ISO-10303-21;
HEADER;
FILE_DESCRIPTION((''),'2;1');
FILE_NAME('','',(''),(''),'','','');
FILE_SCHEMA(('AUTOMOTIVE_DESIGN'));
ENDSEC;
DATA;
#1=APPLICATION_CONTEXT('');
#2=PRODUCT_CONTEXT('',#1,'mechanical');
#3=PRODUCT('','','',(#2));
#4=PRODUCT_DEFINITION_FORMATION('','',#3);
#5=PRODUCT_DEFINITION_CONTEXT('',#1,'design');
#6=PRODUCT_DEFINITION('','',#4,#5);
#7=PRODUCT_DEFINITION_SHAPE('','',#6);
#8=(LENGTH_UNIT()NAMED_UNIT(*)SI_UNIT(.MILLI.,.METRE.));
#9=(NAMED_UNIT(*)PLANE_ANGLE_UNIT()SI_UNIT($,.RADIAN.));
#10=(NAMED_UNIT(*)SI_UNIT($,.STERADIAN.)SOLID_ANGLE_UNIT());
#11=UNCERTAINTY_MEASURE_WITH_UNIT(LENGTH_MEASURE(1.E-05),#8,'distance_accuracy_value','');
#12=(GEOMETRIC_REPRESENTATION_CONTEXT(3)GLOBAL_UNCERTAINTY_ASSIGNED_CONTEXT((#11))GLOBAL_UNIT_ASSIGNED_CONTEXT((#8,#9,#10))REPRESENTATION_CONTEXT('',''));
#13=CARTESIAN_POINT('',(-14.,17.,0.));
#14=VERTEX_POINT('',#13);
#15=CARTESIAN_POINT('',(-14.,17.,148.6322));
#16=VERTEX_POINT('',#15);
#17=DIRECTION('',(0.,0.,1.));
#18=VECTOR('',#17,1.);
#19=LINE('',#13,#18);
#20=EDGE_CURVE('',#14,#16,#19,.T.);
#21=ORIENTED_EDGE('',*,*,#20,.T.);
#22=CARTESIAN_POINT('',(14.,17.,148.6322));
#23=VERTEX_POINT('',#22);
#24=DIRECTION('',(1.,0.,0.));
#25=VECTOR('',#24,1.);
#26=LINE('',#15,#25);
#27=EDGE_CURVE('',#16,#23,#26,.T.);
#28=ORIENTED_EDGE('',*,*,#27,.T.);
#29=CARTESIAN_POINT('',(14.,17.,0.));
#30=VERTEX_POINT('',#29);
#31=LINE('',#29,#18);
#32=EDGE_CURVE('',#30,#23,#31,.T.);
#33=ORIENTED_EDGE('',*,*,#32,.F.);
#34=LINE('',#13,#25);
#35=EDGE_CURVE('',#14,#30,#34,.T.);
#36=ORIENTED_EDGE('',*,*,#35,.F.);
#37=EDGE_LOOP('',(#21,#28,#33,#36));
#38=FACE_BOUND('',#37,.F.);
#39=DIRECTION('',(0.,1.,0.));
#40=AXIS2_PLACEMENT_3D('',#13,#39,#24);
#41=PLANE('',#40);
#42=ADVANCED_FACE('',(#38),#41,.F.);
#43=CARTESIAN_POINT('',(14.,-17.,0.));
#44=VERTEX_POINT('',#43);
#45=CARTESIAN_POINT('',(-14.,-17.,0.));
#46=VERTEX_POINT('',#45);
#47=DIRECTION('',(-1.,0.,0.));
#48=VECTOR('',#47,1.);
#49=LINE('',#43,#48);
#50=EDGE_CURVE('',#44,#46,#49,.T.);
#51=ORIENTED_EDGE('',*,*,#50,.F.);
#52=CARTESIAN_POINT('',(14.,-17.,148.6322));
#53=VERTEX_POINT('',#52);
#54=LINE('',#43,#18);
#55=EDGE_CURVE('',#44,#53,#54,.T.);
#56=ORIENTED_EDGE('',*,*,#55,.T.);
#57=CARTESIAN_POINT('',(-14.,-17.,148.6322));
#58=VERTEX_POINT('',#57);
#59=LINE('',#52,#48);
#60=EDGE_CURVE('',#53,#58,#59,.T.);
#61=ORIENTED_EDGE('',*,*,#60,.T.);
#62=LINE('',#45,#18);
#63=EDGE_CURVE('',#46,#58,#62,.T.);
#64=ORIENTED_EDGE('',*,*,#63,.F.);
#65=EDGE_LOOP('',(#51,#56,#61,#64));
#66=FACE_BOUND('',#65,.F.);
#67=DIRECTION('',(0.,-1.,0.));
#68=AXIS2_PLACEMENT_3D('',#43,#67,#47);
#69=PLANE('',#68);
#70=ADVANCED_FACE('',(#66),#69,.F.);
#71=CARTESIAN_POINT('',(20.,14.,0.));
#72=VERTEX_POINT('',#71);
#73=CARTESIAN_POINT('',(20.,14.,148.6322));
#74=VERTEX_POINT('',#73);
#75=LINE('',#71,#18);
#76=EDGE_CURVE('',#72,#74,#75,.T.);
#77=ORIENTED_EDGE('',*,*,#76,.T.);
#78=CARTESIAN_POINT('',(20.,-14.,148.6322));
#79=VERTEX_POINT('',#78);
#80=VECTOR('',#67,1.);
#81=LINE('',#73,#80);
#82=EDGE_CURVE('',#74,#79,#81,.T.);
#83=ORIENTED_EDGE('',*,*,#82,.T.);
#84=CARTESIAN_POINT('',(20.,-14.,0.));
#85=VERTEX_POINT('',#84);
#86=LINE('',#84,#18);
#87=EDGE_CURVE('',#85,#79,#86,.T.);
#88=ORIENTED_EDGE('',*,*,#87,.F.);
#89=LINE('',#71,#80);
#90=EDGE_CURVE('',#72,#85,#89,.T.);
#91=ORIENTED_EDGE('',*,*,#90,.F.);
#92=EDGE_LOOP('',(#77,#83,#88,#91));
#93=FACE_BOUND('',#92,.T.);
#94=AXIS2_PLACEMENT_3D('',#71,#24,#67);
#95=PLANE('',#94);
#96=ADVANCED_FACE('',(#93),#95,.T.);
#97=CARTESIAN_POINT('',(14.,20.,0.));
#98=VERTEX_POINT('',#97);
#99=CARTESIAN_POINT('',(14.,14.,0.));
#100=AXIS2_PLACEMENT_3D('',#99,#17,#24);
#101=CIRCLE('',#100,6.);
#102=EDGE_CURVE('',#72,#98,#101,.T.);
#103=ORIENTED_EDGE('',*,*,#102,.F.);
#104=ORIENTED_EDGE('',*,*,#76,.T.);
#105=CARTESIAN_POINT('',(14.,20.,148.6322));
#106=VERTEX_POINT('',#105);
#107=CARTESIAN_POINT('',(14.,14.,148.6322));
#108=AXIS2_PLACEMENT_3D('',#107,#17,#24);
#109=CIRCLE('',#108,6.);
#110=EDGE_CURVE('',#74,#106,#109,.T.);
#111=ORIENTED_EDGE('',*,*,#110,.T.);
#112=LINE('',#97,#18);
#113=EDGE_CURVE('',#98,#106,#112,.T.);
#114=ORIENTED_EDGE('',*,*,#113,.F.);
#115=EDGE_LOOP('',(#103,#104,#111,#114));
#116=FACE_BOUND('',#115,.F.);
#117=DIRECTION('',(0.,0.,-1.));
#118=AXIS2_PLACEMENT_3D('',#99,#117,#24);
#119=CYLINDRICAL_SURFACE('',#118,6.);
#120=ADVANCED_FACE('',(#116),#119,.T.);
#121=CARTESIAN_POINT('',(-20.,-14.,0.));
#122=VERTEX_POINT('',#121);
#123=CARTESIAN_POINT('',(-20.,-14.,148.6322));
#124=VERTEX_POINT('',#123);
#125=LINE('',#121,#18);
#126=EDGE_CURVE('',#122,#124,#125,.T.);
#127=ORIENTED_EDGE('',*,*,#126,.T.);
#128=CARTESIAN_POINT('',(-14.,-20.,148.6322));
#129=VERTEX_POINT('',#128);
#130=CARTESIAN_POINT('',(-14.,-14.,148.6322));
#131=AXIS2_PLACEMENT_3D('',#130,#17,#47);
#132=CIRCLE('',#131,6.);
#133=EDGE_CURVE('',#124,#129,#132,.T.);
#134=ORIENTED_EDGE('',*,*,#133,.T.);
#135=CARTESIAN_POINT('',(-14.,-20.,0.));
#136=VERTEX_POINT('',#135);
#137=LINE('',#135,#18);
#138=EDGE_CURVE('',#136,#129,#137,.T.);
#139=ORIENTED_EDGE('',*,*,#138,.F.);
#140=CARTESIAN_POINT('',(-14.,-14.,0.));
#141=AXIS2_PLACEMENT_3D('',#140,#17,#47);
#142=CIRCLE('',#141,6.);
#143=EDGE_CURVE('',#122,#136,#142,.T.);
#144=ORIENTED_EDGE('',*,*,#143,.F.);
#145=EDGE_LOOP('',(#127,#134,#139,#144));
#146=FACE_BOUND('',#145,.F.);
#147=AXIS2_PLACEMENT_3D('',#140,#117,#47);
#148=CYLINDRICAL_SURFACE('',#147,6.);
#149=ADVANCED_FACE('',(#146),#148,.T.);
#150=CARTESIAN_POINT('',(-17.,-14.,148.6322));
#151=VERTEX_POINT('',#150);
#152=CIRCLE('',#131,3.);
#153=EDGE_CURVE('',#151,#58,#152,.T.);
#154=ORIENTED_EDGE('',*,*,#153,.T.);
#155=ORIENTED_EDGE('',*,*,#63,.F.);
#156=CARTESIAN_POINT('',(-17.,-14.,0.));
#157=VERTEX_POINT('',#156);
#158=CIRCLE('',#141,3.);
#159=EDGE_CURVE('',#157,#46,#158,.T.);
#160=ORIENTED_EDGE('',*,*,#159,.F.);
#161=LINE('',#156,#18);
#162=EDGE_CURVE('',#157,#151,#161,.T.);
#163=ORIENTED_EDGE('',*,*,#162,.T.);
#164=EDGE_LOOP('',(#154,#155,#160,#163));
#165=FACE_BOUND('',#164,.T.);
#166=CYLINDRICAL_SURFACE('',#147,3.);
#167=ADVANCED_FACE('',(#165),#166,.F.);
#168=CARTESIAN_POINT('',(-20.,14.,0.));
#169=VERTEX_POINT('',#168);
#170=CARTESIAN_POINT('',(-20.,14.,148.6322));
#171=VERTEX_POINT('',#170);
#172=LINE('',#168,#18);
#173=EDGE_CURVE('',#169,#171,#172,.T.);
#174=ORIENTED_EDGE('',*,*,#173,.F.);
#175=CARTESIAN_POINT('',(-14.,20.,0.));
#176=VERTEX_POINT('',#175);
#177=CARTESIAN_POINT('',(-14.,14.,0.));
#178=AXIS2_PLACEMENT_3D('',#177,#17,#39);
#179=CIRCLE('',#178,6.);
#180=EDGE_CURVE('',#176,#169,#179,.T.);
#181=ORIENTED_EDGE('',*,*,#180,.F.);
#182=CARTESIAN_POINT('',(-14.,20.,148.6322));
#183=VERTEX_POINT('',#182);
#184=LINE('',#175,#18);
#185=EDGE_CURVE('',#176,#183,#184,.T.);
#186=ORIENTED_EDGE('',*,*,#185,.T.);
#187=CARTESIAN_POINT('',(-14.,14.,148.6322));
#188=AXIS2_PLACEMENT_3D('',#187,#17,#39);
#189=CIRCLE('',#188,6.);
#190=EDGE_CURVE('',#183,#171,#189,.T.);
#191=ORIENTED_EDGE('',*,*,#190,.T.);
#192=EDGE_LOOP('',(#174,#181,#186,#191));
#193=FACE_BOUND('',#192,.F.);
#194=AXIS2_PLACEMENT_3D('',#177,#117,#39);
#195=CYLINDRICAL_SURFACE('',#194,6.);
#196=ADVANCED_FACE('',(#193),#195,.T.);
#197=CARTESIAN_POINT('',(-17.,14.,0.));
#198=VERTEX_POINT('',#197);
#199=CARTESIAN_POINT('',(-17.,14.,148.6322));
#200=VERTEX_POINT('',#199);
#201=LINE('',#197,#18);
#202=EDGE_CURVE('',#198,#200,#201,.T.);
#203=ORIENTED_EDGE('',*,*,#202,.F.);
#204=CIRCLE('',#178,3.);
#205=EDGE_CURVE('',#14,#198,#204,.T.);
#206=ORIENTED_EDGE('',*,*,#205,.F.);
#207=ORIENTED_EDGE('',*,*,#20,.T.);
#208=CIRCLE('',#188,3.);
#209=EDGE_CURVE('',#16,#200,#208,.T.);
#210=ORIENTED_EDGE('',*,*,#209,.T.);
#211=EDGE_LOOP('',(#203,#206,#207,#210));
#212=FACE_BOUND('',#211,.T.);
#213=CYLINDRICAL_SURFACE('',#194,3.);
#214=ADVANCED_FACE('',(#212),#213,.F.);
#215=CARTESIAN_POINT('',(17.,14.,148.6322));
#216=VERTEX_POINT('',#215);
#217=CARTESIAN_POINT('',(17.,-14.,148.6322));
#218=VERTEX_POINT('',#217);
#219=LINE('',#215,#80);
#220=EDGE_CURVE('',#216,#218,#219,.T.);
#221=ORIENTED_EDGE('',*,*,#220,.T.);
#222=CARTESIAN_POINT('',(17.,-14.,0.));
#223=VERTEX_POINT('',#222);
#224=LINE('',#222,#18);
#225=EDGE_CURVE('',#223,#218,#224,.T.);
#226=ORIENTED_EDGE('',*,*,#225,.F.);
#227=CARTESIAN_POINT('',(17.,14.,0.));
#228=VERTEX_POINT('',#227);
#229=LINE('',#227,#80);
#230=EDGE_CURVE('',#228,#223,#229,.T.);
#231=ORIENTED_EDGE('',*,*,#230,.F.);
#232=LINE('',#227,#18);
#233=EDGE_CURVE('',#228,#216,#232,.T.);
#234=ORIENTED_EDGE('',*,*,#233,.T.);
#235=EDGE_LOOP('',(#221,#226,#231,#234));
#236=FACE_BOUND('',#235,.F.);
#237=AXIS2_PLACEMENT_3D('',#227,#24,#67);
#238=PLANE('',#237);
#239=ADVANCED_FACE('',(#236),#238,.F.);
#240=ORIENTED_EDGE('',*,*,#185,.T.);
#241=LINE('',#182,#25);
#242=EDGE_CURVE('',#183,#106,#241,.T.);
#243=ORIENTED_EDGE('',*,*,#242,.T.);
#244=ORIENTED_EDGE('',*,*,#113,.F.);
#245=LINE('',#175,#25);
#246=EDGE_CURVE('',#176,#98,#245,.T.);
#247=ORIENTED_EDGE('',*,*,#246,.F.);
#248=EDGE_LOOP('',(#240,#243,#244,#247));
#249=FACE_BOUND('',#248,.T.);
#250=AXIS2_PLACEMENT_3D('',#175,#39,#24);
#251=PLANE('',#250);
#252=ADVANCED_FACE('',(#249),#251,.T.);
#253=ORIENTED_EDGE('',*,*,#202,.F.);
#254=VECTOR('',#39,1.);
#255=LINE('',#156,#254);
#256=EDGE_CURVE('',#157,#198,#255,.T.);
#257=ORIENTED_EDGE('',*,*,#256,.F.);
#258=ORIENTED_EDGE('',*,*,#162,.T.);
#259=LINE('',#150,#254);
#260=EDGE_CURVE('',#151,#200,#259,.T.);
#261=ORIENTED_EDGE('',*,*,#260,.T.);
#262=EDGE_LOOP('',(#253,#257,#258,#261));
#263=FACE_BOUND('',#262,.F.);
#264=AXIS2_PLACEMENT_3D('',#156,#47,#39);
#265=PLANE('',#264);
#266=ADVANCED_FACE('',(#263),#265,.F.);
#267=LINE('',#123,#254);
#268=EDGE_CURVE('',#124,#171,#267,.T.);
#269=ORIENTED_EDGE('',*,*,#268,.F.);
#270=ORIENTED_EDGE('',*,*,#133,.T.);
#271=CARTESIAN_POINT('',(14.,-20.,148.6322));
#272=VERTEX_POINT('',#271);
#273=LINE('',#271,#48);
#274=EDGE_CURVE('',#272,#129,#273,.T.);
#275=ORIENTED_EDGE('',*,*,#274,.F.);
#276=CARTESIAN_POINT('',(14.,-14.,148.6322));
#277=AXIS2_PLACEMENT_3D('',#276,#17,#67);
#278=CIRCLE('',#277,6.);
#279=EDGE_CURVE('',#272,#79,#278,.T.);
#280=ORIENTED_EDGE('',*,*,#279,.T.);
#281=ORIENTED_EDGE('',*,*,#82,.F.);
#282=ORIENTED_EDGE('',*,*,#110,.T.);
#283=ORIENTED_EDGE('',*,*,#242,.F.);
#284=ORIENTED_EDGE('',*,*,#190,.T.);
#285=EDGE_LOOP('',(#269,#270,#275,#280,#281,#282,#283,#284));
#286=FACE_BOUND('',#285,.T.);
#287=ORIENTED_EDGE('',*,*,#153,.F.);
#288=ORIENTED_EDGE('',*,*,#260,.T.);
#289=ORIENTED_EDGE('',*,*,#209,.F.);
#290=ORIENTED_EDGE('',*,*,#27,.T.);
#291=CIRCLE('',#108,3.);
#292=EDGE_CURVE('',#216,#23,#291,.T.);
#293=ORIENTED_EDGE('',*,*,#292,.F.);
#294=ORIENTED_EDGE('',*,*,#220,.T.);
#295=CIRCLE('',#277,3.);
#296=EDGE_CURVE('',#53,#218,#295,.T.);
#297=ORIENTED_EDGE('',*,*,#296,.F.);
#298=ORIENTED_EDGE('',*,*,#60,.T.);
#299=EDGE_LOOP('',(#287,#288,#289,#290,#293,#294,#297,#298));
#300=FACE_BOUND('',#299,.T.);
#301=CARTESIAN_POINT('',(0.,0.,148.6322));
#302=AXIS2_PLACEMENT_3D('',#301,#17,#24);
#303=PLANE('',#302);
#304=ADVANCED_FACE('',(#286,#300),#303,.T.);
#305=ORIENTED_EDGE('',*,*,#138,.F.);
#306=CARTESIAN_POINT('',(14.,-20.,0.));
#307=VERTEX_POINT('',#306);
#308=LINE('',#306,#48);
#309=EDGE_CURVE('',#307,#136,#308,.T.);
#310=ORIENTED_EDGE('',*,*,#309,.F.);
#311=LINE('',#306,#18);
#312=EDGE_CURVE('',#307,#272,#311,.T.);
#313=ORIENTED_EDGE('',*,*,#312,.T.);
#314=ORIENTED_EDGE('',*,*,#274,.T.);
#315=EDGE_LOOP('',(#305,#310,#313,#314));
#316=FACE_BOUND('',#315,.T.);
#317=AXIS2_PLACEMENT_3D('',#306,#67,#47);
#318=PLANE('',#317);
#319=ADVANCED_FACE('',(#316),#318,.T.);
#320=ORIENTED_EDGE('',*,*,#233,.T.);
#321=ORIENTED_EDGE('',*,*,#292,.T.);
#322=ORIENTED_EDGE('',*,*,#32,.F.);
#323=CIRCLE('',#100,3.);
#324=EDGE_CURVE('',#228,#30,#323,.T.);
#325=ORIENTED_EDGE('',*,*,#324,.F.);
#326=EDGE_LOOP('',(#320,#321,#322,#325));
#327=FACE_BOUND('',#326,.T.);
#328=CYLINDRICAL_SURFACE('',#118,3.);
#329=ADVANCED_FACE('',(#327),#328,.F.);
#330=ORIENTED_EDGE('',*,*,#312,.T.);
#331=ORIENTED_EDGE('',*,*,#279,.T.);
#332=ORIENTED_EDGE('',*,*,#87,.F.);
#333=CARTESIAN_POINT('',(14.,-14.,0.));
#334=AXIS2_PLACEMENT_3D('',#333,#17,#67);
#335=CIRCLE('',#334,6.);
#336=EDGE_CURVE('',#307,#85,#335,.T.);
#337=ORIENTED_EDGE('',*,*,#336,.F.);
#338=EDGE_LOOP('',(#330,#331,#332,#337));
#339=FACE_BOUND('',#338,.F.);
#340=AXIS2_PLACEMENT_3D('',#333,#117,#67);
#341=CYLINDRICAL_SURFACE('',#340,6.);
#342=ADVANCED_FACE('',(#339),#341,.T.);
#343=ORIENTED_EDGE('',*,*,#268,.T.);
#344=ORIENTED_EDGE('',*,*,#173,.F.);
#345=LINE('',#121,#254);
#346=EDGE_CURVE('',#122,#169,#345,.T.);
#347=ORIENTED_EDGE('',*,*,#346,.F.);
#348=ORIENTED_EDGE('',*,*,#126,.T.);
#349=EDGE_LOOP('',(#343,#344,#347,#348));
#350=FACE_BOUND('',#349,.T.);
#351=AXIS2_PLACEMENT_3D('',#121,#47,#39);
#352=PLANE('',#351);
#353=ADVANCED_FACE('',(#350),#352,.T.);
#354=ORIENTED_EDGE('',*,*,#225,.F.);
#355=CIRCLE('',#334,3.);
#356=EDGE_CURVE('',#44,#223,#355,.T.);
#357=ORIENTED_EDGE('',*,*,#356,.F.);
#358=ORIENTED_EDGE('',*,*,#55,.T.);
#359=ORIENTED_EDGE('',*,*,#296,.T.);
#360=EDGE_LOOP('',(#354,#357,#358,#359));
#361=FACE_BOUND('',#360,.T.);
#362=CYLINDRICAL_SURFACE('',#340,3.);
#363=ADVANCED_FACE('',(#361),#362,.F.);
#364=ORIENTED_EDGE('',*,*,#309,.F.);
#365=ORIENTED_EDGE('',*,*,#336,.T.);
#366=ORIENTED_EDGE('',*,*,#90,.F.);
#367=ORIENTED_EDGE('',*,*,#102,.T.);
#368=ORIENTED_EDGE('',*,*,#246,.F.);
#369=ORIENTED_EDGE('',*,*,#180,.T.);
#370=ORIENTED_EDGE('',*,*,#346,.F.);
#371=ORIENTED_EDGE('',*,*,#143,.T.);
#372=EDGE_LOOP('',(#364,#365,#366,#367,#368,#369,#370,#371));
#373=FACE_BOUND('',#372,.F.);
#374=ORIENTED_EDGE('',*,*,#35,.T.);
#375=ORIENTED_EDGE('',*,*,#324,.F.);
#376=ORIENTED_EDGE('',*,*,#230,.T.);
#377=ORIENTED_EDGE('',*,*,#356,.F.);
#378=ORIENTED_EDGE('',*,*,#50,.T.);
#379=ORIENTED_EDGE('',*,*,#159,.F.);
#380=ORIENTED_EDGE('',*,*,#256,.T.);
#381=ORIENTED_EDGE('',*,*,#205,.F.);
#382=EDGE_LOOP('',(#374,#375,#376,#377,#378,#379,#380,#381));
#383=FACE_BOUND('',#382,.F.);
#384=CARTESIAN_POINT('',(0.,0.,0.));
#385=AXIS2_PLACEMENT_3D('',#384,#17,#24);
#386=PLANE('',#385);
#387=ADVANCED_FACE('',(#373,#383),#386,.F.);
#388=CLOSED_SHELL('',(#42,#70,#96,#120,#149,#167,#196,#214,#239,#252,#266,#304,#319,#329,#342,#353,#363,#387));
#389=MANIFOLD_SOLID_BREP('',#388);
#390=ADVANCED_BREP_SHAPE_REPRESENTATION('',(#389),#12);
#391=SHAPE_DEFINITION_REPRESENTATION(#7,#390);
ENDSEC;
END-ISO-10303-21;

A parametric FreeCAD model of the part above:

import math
import FreeCAD as App
import Part
import Sketcher

V = App.Vector
Q = App.Units.Quantity

doc = App.newDocument("Part")
body = doc.addObject("PartDesign::Body", "Body")

# Sketch on XY plane
sketch1 = body.newObject("Sketcher::SketchObject", "Sketch")
sketch1.AttachmentSupport = (doc.getObject("XY_Plane"), [""])
sketch1.MapMode = "FlatFace"
sketch1.addGeometry(Part.LineSegment(V(-20, 14, 0), V(-20, -14, 0)), False)
sketch1.addGeometry(Part.ArcOfCircle(Part.Circle(V(-14, -14, 0), V(0, 0, 1), 6), math.radians(180), math.radians(270)), False)
sketch1.addGeometry(Part.LineSegment(V(-14, -20, 0), V(14, -20, 0)), False)
sketch1.addGeometry(Part.ArcOfCircle(Part.Circle(V(14, -14, 0), V(0, 0, 1), 6), math.radians(-90), math.radians(0)), False)
sketch1.addGeometry(Part.LineSegment(V(20, -14, 0), V(20, 14, 0)), False)
sketch1.addGeometry(Part.ArcOfCircle(Part.Circle(V(14, 14, 0), V(0, 0, 1), 6), math.radians(0), math.radians(90)), False)
sketch1.addGeometry(Part.LineSegment(V(14, 20, 0), V(-14, 20, 0)), False)
sketch1.addGeometry(Part.ArcOfCircle(Part.Circle(V(-14, 14, 0), V(0, 0, 1), 6), math.radians(90), math.radians(180)), False)
sketch1.addGeometry(Part.ArcOfCircle(Part.Circle(V(-14, 14, 0), V(0, 0, 1), 3), math.radians(90), math.radians(180)), False)
sketch1.addGeometry(Part.LineSegment(V(-14, 17, 0), V(14, 17, 0)), False)
sketch1.addGeometry(Part.ArcOfCircle(Part.Circle(V(14, 14, 0), V(0, 0, 1), 3), math.radians(0), math.radians(90)), False)
sketch1.addGeometry(Part.LineSegment(V(17, 14, 0), V(17, -14, 0)), False)
sketch1.addGeometry(Part.ArcOfCircle(Part.Circle(V(14, -14, 0), V(0, 0, 1), 3), math.radians(-90), math.radians(0)), False)
sketch1.addGeometry(Part.LineSegment(V(14, -17, 0), V(-14, -17, 0)), False)
sketch1.addGeometry(Part.ArcOfCircle(Part.Circle(V(-14, -14, 0), V(0, 0, 1), 3), math.radians(180), math.radians(270)), False)
sketch1.addGeometry(Part.LineSegment(V(-17, -14, 0), V(-17, 14, 0)), False)
sketch1.addConstraint(Sketcher.Constraint("Tangent", 0, 2, 1, 1))
sketch1.addConstraint(Sketcher.Constraint("Tangent", 1, 2, 2, 1))
sketch1.addConstraint(Sketcher.Constraint("Tangent", 2, 2, 3, 1))
sketch1.addConstraint(Sketcher.Constraint("Tangent", 3, 2, 4, 1))
sketch1.addConstraint(Sketcher.Constraint("Tangent", 4, 2, 5, 1))
sketch1.addConstraint(Sketcher.Constraint("Tangent", 5, 2, 6, 1))
sketch1.addConstraint(Sketcher.Constraint("Tangent", 6, 2, 7, 1))
sketch1.addConstraint(Sketcher.Constraint("Tangent", 7, 2, 0, 1))
sketch1.addConstraint(Sketcher.Constraint("Tangent", 8, 1, 9, 1))
sketch1.addConstraint(Sketcher.Constraint("Tangent", 9, 2, 10, 2))
sketch1.addConstraint(Sketcher.Constraint("Tangent", 10, 1, 11, 1))
sketch1.addConstraint(Sketcher.Constraint("Tangent", 11, 2, 12, 2))
sketch1.addConstraint(Sketcher.Constraint("Tangent", 12, 1, 13, 1))
sketch1.addConstraint(Sketcher.Constraint("Tangent", 13, 2, 14, 2))
sketch1.addConstraint(Sketcher.Constraint("Tangent", 14, 1, 15, 1))
sketch1.addConstraint(Sketcher.Constraint("Tangent", 15, 2, 8, 2))
sketch1.addConstraint(Sketcher.Constraint("Vertical", 0))
sketch1.addConstraint(Sketcher.Constraint("Horizontal", 2))
sketch1.addConstraint(Sketcher.Constraint("Vertical", 4))
sketch1.addConstraint(Sketcher.Constraint("Horizontal", 6))
sketch1.addConstraint(Sketcher.Constraint("Horizontal", 9))
sketch1.addConstraint(Sketcher.Constraint("Vertical", 11))
sketch1.addConstraint(Sketcher.Constraint("Horizontal", 13))
sketch1.addConstraint(Sketcher.Constraint("Vertical", 15))
sketch1.addConstraint(Sketcher.Constraint("Coincident", 8, 3, 7, 3))
sketch1.addConstraint(Sketcher.Constraint("Coincident", 10, 3, 5, 3))
sketch1.addConstraint(Sketcher.Constraint("Coincident", 12, 3, 3, 3))
sketch1.addConstraint(Sketcher.Constraint("Equal", 1, 3))
sketch1.addConstraint(Sketcher.Constraint("Equal", 3, 5))
sketch1.addConstraint(Sketcher.Constraint("Equal", 5, 7))
sketch1.addConstraint(Sketcher.Constraint("Equal", 12, 14))
sketch1.addConstraint(Sketcher.Constraint("Symmetric", 1, 3, 5, 3, -1, 1))
sketch1.addConstraint(Sketcher.Constraint("Equal", 13, 0))
sketch1.addConstraint(Sketcher.Constraint("Radius", 1, Q("6 mm")))
sketch1.addConstraint(Sketcher.Constraint("Radius", 8, Q("3 mm")))
sketch1.addConstraint(Sketcher.Constraint("DistanceX", 0, 2, -1, 1, Q("20 mm")))
pad1 = body.newObject("PartDesign::Pad", "Pad")
pad1.Profile = sketch1
pad1.Length = 148.6322

doc.recompute()
